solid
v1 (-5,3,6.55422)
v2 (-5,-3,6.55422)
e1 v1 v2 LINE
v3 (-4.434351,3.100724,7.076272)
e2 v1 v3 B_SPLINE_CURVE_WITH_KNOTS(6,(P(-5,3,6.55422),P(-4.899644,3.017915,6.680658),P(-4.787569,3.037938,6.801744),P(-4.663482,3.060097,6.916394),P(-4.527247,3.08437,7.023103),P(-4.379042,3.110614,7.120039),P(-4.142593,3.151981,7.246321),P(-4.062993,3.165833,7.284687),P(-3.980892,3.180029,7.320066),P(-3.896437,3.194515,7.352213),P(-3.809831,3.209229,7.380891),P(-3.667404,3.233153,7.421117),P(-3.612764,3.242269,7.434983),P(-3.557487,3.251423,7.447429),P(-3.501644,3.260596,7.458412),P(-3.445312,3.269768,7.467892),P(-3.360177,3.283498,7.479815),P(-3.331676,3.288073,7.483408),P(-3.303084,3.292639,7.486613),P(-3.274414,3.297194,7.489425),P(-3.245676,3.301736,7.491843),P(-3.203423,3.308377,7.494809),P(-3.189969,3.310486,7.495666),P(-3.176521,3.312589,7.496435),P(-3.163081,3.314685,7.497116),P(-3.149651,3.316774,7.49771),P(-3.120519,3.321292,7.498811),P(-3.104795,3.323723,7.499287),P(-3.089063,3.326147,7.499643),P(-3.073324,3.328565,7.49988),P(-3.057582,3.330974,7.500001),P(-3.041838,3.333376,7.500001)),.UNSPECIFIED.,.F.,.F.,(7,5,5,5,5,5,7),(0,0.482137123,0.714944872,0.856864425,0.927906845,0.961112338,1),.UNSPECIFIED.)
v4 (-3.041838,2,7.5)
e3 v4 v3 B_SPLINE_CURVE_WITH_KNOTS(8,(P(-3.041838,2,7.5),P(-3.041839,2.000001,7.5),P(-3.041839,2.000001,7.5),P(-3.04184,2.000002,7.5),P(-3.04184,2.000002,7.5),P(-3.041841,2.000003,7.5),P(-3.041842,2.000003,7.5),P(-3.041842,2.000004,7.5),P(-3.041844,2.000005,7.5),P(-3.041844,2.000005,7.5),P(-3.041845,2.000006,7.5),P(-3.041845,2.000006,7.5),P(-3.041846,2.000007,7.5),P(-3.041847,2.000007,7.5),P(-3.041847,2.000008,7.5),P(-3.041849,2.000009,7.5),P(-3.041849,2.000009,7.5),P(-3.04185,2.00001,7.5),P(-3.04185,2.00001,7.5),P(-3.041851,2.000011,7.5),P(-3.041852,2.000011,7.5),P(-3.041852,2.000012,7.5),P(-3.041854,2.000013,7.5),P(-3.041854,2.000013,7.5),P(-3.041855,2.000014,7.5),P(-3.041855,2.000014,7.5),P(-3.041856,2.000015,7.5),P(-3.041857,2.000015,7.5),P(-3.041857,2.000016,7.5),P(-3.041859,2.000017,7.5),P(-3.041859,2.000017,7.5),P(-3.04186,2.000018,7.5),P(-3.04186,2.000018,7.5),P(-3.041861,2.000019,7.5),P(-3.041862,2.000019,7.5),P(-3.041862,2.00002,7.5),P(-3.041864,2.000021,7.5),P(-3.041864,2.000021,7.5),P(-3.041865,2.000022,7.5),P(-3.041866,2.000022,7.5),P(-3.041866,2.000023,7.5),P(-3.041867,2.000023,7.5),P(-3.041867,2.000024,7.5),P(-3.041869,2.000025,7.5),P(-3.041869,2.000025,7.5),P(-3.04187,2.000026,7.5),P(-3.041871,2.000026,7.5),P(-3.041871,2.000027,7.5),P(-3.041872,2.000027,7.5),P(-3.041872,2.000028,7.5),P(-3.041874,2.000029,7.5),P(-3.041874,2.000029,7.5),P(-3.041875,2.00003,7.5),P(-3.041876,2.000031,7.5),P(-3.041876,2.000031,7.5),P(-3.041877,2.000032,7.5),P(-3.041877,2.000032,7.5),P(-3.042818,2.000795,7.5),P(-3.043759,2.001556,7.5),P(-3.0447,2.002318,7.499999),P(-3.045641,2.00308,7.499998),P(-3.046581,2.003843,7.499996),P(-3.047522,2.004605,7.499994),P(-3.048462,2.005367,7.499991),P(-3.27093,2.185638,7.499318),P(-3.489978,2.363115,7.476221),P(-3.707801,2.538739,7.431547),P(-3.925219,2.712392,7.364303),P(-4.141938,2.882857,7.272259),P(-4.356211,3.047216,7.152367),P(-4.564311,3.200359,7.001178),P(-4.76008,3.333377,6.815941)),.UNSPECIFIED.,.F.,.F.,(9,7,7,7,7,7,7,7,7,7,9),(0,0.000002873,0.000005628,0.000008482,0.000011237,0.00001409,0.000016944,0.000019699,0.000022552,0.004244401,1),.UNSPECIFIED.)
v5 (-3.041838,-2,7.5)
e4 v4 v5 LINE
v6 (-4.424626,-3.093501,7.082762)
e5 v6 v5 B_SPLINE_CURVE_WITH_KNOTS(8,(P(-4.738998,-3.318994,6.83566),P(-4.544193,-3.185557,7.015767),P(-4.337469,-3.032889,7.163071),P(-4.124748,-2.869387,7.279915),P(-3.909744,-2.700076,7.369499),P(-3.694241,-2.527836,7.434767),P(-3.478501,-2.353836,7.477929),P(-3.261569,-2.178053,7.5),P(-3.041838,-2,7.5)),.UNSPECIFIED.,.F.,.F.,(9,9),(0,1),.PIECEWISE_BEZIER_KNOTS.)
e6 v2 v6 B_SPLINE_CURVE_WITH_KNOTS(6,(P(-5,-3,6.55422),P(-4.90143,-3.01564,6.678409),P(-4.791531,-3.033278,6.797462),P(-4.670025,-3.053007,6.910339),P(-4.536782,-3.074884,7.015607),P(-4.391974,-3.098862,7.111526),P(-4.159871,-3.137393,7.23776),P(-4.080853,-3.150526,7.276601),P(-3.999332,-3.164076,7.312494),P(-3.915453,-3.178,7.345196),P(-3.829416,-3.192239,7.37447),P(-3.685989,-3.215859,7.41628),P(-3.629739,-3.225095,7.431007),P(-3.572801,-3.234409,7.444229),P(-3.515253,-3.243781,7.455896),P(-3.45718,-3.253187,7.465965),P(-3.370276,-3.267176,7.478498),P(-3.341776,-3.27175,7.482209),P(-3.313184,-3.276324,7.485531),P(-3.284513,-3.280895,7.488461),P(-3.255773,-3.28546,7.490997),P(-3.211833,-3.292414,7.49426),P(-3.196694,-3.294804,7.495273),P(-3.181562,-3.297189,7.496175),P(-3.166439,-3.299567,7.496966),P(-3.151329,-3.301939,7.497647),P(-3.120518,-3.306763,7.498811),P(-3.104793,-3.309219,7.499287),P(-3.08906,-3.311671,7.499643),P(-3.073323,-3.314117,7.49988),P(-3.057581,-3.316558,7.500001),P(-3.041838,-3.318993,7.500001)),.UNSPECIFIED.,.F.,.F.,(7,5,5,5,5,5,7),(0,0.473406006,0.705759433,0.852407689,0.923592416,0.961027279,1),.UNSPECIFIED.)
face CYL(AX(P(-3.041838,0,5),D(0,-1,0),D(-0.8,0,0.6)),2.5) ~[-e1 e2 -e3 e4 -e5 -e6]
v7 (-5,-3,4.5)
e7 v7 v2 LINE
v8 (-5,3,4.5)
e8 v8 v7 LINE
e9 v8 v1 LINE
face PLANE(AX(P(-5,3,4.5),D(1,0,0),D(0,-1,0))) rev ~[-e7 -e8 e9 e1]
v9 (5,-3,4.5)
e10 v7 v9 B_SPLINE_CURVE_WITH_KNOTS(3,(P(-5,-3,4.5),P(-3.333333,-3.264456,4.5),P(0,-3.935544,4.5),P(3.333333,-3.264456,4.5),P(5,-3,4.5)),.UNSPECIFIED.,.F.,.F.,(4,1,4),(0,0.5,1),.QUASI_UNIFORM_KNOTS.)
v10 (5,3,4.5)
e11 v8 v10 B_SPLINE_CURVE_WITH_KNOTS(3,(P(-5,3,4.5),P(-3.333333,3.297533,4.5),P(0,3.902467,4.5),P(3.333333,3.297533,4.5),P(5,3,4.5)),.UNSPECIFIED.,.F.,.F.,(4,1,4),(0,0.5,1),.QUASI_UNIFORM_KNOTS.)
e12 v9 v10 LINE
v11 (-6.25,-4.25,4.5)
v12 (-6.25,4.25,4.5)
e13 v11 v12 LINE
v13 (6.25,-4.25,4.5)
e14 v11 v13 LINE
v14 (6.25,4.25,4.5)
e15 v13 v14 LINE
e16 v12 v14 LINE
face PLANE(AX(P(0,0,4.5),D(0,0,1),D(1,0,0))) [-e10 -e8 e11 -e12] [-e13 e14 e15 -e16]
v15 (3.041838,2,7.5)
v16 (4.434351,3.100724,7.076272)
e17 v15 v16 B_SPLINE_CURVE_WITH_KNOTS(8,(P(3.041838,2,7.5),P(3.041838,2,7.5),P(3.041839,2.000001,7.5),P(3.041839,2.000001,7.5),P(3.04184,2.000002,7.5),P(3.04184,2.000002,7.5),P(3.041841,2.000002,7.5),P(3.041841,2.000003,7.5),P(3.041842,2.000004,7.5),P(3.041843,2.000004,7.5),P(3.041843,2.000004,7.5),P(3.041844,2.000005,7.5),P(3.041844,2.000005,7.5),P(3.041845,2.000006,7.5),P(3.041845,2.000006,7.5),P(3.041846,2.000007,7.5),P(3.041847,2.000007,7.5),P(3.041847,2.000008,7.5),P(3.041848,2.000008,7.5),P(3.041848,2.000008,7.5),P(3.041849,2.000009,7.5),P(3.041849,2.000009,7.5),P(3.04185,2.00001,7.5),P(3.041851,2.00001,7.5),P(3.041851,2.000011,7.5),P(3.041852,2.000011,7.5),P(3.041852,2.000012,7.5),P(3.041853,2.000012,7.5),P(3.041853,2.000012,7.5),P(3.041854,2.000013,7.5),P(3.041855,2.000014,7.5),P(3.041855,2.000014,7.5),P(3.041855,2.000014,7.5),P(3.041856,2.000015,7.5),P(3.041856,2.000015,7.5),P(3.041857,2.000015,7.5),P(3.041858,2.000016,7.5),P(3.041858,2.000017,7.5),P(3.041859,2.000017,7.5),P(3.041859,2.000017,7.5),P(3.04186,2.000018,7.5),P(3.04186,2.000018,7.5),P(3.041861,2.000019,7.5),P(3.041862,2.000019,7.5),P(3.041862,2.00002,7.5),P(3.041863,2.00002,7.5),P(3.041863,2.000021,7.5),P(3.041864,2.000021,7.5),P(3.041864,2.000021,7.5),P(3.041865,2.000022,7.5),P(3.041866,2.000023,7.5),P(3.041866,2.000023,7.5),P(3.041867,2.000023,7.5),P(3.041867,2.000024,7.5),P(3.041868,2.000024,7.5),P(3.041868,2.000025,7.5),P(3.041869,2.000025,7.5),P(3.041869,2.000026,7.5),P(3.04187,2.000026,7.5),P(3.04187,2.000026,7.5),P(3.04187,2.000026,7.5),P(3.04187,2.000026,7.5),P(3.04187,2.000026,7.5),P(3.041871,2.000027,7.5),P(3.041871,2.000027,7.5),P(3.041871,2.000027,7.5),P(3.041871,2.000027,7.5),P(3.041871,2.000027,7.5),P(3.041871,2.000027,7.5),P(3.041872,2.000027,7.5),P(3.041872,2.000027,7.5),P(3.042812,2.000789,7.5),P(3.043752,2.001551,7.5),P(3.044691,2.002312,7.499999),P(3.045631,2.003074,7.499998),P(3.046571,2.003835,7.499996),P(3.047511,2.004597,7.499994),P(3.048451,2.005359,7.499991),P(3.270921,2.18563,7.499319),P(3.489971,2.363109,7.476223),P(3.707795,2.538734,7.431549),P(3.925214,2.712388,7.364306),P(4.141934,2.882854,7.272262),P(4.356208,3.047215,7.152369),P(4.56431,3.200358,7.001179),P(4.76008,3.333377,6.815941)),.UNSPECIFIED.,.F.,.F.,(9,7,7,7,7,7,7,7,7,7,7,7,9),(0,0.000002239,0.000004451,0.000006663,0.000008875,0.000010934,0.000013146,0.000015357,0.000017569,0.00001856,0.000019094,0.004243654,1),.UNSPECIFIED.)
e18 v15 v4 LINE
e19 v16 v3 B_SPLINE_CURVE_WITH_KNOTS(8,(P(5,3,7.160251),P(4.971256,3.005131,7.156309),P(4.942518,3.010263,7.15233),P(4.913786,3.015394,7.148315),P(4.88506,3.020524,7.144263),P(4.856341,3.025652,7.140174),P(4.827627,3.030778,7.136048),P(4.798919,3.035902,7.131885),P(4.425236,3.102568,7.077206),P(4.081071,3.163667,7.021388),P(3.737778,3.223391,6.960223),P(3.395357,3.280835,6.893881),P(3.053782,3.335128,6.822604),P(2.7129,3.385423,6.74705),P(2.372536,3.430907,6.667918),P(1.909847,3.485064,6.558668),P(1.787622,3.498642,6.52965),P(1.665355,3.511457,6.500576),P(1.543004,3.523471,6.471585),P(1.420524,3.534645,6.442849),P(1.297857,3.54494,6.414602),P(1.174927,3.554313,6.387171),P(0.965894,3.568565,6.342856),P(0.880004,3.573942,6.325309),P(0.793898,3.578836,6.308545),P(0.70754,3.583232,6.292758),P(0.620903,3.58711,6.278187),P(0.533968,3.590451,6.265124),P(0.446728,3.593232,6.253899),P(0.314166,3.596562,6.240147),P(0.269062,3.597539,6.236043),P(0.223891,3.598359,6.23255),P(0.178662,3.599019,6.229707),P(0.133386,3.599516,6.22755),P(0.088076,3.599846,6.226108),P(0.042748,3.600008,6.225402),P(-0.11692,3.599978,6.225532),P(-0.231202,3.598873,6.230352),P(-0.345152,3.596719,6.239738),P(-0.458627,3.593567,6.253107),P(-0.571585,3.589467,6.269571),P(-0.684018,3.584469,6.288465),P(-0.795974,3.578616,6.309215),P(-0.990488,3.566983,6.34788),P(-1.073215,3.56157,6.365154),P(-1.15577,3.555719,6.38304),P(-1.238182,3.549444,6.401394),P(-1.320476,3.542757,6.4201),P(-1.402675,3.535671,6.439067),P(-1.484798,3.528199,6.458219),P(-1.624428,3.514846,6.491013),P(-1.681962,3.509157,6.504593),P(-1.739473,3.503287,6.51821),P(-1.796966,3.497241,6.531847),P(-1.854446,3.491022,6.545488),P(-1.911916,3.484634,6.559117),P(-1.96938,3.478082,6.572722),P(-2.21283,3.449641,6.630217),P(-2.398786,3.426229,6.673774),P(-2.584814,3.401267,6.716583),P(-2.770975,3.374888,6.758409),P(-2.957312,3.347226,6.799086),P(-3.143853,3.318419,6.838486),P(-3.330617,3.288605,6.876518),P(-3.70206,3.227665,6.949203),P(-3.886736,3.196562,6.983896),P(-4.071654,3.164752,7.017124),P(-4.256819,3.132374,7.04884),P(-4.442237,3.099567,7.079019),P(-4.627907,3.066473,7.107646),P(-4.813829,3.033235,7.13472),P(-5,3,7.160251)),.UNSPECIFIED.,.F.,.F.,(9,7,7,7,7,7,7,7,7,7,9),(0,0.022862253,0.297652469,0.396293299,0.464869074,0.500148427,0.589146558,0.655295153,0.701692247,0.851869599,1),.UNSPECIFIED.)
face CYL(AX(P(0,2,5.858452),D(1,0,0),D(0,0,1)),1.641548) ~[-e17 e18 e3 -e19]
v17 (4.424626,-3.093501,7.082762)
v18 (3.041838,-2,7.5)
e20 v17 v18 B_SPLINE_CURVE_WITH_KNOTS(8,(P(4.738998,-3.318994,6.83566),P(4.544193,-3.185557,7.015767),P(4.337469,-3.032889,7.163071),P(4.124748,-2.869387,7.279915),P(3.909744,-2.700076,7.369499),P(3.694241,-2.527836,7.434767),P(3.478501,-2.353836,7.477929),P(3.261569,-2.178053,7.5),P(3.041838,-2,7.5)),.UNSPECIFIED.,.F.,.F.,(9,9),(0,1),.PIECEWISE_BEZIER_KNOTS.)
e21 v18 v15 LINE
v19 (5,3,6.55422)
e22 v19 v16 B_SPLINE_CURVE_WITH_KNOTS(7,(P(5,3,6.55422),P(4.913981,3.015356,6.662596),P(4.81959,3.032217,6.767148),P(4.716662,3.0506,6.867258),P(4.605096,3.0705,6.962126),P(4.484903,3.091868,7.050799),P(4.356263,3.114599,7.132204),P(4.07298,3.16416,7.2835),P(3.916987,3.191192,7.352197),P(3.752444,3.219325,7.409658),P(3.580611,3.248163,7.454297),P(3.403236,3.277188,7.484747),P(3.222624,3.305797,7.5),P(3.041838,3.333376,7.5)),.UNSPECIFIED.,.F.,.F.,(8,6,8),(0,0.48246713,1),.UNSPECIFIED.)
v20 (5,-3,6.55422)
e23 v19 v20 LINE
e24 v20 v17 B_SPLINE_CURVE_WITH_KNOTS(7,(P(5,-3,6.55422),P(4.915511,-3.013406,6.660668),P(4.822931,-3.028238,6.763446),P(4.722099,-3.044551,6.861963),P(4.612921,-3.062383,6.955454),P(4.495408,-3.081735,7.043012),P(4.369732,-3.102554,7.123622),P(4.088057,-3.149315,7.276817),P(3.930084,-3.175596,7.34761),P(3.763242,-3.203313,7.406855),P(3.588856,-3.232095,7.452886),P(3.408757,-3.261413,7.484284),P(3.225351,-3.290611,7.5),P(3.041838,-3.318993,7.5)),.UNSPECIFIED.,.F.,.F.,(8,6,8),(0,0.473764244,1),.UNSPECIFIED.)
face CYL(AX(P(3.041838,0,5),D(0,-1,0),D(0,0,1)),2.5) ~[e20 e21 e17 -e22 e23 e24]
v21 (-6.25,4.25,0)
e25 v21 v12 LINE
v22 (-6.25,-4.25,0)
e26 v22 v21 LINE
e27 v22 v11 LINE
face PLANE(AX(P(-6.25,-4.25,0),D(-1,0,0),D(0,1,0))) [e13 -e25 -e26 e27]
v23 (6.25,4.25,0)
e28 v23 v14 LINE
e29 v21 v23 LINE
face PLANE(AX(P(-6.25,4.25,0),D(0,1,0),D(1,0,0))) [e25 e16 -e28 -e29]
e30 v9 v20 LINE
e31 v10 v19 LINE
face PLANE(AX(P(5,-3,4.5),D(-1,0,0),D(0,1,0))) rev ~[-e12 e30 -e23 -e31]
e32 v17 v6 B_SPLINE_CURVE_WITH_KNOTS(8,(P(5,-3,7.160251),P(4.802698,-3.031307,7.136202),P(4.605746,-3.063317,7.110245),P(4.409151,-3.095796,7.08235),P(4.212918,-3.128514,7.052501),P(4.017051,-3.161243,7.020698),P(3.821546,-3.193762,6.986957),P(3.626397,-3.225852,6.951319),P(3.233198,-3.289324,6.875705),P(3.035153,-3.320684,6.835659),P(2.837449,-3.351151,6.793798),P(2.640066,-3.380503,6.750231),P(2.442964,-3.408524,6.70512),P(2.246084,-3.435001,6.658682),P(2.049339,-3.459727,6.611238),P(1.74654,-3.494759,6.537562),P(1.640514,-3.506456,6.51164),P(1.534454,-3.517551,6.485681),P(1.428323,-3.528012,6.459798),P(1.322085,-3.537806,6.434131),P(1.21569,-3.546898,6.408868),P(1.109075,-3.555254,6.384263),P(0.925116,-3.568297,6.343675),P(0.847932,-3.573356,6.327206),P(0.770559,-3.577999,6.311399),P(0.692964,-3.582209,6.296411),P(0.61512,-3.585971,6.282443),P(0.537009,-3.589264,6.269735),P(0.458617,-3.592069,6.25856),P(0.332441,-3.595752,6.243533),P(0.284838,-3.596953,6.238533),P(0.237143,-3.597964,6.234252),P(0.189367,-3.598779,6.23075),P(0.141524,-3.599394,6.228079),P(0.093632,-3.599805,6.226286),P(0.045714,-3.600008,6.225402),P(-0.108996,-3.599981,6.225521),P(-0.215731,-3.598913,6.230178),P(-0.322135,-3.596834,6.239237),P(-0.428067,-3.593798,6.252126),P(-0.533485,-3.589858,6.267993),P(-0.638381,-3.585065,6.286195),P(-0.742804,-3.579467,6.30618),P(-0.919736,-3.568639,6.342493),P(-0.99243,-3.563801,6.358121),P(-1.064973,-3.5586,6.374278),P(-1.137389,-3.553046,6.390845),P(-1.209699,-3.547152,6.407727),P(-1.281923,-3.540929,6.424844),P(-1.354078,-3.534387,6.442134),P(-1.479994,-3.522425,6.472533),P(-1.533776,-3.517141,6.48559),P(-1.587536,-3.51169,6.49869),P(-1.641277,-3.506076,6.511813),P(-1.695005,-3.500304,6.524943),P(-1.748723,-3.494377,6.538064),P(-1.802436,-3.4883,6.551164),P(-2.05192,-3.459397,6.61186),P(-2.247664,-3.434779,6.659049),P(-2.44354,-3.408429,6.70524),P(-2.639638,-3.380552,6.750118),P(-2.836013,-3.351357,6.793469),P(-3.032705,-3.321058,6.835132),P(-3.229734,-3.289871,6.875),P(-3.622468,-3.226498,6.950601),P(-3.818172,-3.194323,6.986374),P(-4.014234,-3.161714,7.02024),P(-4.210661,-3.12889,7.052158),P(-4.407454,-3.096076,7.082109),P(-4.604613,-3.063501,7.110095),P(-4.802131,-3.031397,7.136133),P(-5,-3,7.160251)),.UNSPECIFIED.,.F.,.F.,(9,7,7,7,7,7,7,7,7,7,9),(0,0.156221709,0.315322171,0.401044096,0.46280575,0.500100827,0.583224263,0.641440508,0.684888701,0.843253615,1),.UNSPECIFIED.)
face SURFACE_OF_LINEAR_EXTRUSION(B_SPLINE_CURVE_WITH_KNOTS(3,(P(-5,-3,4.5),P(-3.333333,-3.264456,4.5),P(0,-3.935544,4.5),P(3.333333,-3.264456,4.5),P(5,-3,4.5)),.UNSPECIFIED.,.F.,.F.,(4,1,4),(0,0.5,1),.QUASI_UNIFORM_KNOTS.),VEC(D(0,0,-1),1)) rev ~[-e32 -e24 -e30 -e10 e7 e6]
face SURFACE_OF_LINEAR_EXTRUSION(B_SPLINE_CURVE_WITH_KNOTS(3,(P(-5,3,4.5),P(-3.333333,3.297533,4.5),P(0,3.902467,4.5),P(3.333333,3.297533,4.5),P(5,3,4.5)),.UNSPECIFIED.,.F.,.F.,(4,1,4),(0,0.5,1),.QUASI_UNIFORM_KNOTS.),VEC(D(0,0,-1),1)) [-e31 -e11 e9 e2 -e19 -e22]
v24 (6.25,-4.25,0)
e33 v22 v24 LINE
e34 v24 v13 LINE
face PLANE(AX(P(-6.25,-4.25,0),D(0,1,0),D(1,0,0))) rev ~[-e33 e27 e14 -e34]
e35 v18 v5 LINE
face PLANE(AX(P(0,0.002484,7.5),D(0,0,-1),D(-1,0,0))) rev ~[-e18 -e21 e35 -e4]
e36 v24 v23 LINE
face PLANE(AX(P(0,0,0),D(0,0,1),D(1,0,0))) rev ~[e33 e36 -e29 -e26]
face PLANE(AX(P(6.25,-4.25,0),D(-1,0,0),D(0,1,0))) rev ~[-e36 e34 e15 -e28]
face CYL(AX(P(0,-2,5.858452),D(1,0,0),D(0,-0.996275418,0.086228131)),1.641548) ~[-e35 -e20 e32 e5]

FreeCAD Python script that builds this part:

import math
import FreeCAD as App
import Part
import Sketcher

doc = App.newDocument("Part")
body = doc.addObject("PartDesign::Body", "Body")

sketch1 = body.newObject("Sketcher::SketchObject", "Sketch")
sketch1.AttachmentSupport = (doc.getObject("XY_Plane"), [""])
sketch1.MapMode = "FlatFace"
sketch1.addGeometry(Part.LineSegment(App.Vector(-6, 4, 0), App.Vector(-6, -4, 0)), False)
sketch1.addGeometry(Part.LineSegment(App.Vector(-6, -4, 0), App.Vector(6, -4, 0)), False)
sketch1.addGeometry(Part.LineSegment(App.Vector(6, -4, 0), App.Vector(6, 4, 0)), False)
sketch1.addGeometry(Part.LineSegment(App.Vector(6, 4, 0), App.Vector(-6, 4, 0)), False)
sketch1.addConstraint(Sketcher.Constraint("Coincident", 0, 2, 1, 1))
sketch1.addConstraint(Sketcher.Constraint("Coincident", 1, 2, 2, 1))
sketch1.addConstraint(Sketcher.Constraint("Coincident", 2, 2, 3, 1))
sketch1.addConstraint(Sketcher.Constraint("Coincident", 3, 2, 0, 1))
sketch1.addConstraint(Sketcher.Constraint("Vertical", 0))
sketch1.addConstraint(Sketcher.Constraint("Horizontal", 1))
sketch1.addConstraint(Sketcher.Constraint("Vertical", 2))
sketch1.addConstraint(Sketcher.Constraint("Horizontal", 3))
sketch1.addConstraint(Sketcher.Constraint("Symmetric", 0, 2, 2, 2, -1, 1))
sketch1.addConstraint(Sketcher.Constraint("DistanceX", 1, 1, 1, 2, 12.5))
sketch1.addConstraint(Sketcher.Constraint("DistanceY", 0, 2, 0, 1, 8.5))
pad1 = body.newObject("PartDesign::Pad", "Pad")
pad1.Profile = sketch1
pad1.Length = 4.5

sketch2 = body.newObject("Sketcher::SketchObject", "Sketch001")
sketch2.AttachmentSupport = (doc.getObject("XY_Plane"), [""])
sketch2.MapMode = "FlatFace"
sketch2.AttachmentOffset = App.Placement(App.Vector(0, 0, 4.5), App.Rotation())
sketch2.addGeometry(Part.BSplineCurve([App.Vector(-5, 3, 0), App.Vector(-3.333333, 3.297533, 0), App.Vector(0, 3.902467, 0), App.Vector(3.333333, 3.297533, 0), App.Vector(5, 3, 0)], [4, 1, 4], [0, 0.5, 1], False, 3, [1, 1, 1, 1, 1], False), False)
sketch2.addGeometry(Part.LineSegment(App.Vector(-5, 3, 0), App.Vector(-5, -3, 0)), False)
sketch2.addGeometry(Part.BSplineCurve([App.Vector(-5, -3, 0), App.Vector(-3.333333, -3.264456, 0), App.Vector(0, -3.935544, 0), App.Vector(3.333333, -3.264456, 0), App.Vector(5, -3, 0)], [4, 1, 4], [0, 0.5, 1], False, 3, [1, 1, 1, 1, 1], False), False)
sketch2.addGeometry(Part.LineSegment(App.Vector(5, -3, 0), App.Vector(5, 3, 0)), False)
sketch2.addConstraint(Sketcher.Constraint("Block", 0))
sketch2.addConstraint(Sketcher.Constraint("Block", 2))
sketch2.addConstraint(Sketcher.Constraint("Coincident", 0, 1, 1, 1))
sketch2.addConstraint(Sketcher.Constraint("Coincident", 1, 2, 2, 1))
sketch2.addConstraint(Sketcher.Constraint("Coincident", 2, 2, 3, 1))
sketch2.addConstraint(Sketcher.Constraint("Coincident", 3, 2, 0, 2))
pad2 = body.newObject("PartDesign::Pad", "Pad001")
pad2.Profile = sketch2
pad2.Length = 3

sketch3 = body.newObject("Sketcher::SketchObject", "Sketch002")
sketch3.AttachmentSupport = (doc.getObject("XZ_Plane"), [""])
sketch3.MapMode = "FlatFace"
sketch3.addGeometry(Part.LineSegment(App.Vector(5, 7.7, 0), App.Vector(-5, 7.7, 0)), False)
sketch3.addGeometry(Part.LineSegment(App.Vector(-5, 7.7, 0), App.Vector(-5, 6.5, 0)), False)
sketch3.addGeometry(Part.ArcOfCircle(Part.Circle(App.Vector(-3, 5, 0), App.Vector(0, 0, 1), 2.5), math.radians(90), math.radians(143)), False)
sketch3.addGeometry(Part.LineSegment(App.Vector(-3, 7.5, 0), App.Vector(3, 7.5, 0)), False)
sketch3.addGeometry(Part.ArcOfCircle(Part.Circle(App.Vector(3, 5, 0), App.Vector(0, 0, 1), 2.5), math.radians(37), math.radians(90)), False)
sketch3.addGeometry(Part.LineSegment(App.Vector(5, 6.5, 0), App.Vector(5, 7.7, 0)), False)
sketch3.addConstraint(Sketcher.Constraint("Coincident", 0, 2, 1, 1))
sketch3.addConstraint(Sketcher.Constraint("Coincident", 1, 2, 2, 2))
sketch3.addConstraint(Sketcher.Constraint("Tangent", 2, 1, 3, 1))
sketch3.addConstraint(Sketcher.Constraint("Tangent", 3, 2, 4, 2))
sketch3.addConstraint(Sketcher.Constraint("Coincident", 4, 1, 5, 1))
sketch3.addConstraint(Sketcher.Constraint("Coincident", 5, 2, 0, 1))
sketch3.addConstraint(Sketcher.Constraint("Horizontal", 0))
sketch3.addConstraint(Sketcher.Constraint("Vertical", 1))
sketch3.addConstraint(Sketcher.Constraint("Horizontal", 3))
sketch3.addConstraint(Sketcher.Constraint("Vertical", 5))
sketch3.addConstraint(Sketcher.Constraint("Equal", 2, 4))
sketch3.addConstraint(Sketcher.Constraint("Symmetric", 1, 2, 4, 1, -2))
sketch3.addConstraint(Sketcher.Constraint("Radius", 2, 2.5))
sketch3.addConstraint(Sketcher.Constraint("DistanceY", -1, 1, 2, 3, 5.0))
sketch3.addConstraint(Sketcher.Constraint("DistanceX", 0, 2, 2, 3, 2.0))
sketch3.addConstraint(Sketcher.Constraint("DistanceX", 0, 2, 0, 1, 10.083676))
sketch3.addConstraint(Sketcher.Constraint("DistanceY", 1, 2, 1, 1, 1.227684))
pocket1 = body.newObject("PartDesign::Pocket", "Pocket")
pocket1.Profile = sketch3
pocket1.Length = 25
pocket1.Midplane = True

sketch4 = body.newObject("Sketcher::SketchObject", "Sketch003")
sketch4.AttachmentSupport = (doc.getObject("YZ_Plane"), [""])
sketch4.MapMode = "FlatFace"
sketch4.addGeometry(Part.LineSegment(App.Vector(3.6, 6, 0), App.Vector(3.6, 8, 0)), False)
sketch4.addGeometry(Part.LineSegment(App.Vector(3.6, 8, 0), App.Vector(-3.6, 8, 0)), False)
sketch4.addGeometry(Part.LineSegment(App.Vector(-3.6, 8, 0), App.Vector(-3.6, 6, 0)), False)
sketch4.addGeometry(Part.ArcOfCircle(Part.Circle(App.Vector(-2, 5.9, 0), App.Vector(0, 0, 1), 1.6), math.radians(90), math.radians(175)), False)
sketch4.addGeometry(Part.LineSegment(App.Vector(-2, 7.5, 0), App.Vector(2, 7.5, 0)), False)
sketch4.addGeometry(Part.ArcOfCircle(Part.Circle(App.Vector(2, 5.9, 0), App.Vector(0, 0, 1), 1.6), math.radians(5), math.radians(90)), False)
sketch4.addConstraint(Sketcher.Constraint("Coincident", 0, 2, 1, 1))
sketch4.addConstraint(Sketcher.Constraint("Coincident", 1, 2, 2, 1))
sketch4.addConstraint(Sketcher.Constraint("Coincident", 2, 2, 3, 2))
sketch4.addConstraint(Sketcher.Constraint("Tangent", 3, 1, 4, 1))
sketch4.addConstraint(Sketcher.Constraint("Tangent", 4, 2, 5, 2))
sketch4.addConstraint(Sketcher.Constraint("Coincident", 5, 1, 0, 1))
sketch4.addConstraint(Sketcher.Constraint("Vertical", 0))
sketch4.addConstraint(Sketcher.Constraint("Horizontal", 1))
sketch4.addConstraint(Sketcher.Constraint("Vertical", 2))
sketch4.addConstraint(Sketcher.Constraint("Horizontal", 4))
sketch4.addConstraint(Sketcher.Constraint("Equal", 3, 5))
sketch4.addConstraint(Sketcher.Constraint("Symmetric", 2, 2, 5, 1, -2))
sketch4.addConstraint(Sketcher.Constraint("DistanceX", 4, 1, 4, 2, 4.0))
sketch4.addConstraint(Sketcher.Constraint("DistanceY", -1, 1, 2, 2, 6.0))
sketch4.addConstraint(Sketcher.Constraint("DistanceY", -1, 1, 3, 1, 7.5))
sketch4.addConstraint(Sketcher.Constraint("Radius", 3, 1.641548))
sketch4.addConstraint(Sketcher.Constraint("DistanceY", 0, 1, 0, 2, 1.963023))
pocket2 = body.newObject("PartDesign::Pocket", "Pocket001")
pocket2.Profile = sketch4
pocket2.Length = 25
pocket2.Midplane = True

doc.recompute()
